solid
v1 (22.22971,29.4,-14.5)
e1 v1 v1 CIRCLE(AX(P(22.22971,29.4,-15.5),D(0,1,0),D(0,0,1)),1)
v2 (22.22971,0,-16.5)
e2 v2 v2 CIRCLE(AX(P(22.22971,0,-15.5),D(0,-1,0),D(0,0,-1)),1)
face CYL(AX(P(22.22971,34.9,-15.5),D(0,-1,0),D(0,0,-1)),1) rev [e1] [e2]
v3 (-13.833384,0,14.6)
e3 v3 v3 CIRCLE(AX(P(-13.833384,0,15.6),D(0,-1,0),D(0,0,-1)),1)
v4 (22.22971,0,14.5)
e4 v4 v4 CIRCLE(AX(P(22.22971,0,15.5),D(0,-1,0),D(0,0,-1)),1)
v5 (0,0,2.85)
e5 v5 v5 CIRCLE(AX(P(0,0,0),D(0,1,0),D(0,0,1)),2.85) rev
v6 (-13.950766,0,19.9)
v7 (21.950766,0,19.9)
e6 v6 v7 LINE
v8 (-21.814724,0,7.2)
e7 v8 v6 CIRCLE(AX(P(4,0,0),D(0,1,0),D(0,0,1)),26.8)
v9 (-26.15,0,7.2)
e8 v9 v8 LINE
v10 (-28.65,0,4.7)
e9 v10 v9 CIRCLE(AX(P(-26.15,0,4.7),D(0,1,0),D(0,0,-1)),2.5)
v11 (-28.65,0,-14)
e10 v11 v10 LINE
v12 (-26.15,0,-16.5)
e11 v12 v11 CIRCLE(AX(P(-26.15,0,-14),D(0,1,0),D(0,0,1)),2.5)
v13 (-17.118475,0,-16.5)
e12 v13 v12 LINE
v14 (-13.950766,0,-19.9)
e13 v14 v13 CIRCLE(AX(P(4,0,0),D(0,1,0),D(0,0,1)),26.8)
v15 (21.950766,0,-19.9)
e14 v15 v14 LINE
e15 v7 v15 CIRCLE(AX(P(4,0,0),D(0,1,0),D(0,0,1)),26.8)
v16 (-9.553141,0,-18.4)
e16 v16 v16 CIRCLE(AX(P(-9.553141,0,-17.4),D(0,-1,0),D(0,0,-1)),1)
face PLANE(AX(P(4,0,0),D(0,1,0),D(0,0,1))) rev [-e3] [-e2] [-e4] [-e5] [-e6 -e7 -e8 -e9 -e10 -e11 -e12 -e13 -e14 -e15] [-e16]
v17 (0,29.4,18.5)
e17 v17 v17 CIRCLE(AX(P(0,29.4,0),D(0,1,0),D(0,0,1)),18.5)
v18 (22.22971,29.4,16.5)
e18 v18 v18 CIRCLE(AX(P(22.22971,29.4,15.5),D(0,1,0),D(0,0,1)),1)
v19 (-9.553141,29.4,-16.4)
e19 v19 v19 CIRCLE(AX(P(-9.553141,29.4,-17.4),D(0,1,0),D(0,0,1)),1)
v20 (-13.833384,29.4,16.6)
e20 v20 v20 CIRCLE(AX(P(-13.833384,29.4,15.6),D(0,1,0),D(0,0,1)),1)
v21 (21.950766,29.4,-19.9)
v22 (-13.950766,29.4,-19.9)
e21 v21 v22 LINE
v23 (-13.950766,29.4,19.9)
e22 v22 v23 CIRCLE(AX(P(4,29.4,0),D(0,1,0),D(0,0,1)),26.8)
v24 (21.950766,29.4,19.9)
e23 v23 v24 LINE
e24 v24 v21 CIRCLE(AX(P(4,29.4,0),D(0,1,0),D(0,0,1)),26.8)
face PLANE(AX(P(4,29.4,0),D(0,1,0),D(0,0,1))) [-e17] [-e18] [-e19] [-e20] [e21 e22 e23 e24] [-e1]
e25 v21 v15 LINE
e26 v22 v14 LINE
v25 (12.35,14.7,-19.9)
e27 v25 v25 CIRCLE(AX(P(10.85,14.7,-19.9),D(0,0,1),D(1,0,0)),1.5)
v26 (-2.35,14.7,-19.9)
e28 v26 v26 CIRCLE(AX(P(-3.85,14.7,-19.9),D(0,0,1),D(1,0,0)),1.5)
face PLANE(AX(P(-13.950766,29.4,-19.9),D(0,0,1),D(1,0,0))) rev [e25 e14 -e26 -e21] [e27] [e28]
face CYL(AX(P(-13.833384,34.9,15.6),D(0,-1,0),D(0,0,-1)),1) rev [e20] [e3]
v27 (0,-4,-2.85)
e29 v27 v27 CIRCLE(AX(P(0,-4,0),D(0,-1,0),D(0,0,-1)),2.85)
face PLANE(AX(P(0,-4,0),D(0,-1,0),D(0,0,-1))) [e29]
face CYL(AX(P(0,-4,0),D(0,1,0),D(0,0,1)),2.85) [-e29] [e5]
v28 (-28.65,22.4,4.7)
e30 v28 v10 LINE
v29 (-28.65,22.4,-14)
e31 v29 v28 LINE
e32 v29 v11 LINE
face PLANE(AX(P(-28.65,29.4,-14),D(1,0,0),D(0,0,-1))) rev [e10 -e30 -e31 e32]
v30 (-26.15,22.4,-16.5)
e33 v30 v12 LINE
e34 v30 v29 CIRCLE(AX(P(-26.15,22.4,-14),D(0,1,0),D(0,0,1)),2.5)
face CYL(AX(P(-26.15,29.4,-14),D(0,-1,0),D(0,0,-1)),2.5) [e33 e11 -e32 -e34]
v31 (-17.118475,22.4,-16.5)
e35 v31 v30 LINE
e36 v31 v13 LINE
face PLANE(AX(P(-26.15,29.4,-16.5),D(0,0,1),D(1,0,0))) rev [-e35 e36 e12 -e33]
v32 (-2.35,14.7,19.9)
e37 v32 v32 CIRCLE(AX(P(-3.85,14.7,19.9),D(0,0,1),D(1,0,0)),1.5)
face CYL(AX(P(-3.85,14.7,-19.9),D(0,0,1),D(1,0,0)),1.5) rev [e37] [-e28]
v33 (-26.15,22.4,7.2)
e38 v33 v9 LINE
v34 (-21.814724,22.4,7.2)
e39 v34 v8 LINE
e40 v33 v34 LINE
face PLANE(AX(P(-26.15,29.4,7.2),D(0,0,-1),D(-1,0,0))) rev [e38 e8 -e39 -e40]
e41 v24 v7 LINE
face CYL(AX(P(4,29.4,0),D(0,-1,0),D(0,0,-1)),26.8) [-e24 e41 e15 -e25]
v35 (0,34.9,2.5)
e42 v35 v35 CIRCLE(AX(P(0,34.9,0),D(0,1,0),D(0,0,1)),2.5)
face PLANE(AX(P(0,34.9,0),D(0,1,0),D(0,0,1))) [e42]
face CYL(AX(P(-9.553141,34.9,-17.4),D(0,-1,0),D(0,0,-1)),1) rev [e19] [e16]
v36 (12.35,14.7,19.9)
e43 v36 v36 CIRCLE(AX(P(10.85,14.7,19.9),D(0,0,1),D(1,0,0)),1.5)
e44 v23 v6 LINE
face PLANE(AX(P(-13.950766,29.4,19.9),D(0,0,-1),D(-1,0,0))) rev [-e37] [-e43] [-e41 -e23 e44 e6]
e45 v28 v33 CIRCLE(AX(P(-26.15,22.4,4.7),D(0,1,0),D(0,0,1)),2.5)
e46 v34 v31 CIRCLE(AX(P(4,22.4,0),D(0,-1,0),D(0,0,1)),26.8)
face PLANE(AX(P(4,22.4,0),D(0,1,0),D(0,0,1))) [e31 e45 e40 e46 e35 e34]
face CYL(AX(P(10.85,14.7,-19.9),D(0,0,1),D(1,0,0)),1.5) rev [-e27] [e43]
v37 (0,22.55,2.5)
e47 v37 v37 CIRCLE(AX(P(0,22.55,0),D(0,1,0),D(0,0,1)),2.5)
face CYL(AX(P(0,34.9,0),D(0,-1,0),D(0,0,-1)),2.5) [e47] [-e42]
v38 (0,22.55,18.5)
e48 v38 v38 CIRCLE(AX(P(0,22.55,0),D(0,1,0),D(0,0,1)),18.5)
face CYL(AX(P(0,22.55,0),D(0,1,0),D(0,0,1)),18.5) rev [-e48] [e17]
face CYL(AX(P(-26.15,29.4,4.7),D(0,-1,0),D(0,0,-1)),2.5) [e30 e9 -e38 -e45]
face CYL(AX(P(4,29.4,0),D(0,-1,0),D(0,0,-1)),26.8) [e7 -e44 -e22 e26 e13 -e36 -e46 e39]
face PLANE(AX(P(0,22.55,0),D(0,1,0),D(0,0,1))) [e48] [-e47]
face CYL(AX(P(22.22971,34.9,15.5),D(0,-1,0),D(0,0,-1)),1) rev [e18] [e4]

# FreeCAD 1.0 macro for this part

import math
import FreeCAD as App
import Part
import Sketcher
from FreeCAD import Vector
Q = App.Units.Quantity

doc = App.newDocument("Part")
body = doc.addObject("PartDesign::Body", "Body")

sketch1 = body.newObject("Sketcher::SketchObject", "Sketch")
sketch1.AttachmentSupport = (doc.getObject("XZ_Plane"), [""])
sketch1.MapMode = "FlatFace"
sketch1.addGeometry([
    Part.LineSegment(Vector(22, -19.9, 0), Vector(-14, -19.9, 0)),
    Part.ArcOfCircle(Part.Circle(Vector(4, 0, 0), Vector(0, 0, 1), 26.8), math.radians(-142), math.radians(-132.05)),
    Part.LineSegment(Vector(-17.1, -16.5, 0), Vector(-26.1, -16.5, 0)),
    Part.ArcOfCircle(Part.Circle(Vector(-26.1, -14, 0), Vector(0, 0, 1), 2.5), math.radians(180), math.radians(270)),
    Part.LineSegment(Vector(-28.6, -14, 0), Vector(-28.6, 4.7, 0)),
    Part.ArcOfCircle(Part.Circle(Vector(-26.1, 4.7, 0), Vector(0, 0, 1), 2.5), math.radians(90), math.radians(180)),
    Part.LineSegment(Vector(-26.1, 7.2, 0), Vector(-21.8, 7.2, 0)),
    Part.ArcOfCircle(Part.Circle(Vector(4, 0, 0), Vector(0, 0, 1), 26.8), math.radians(132), math.radians(164)),
    Part.LineSegment(Vector(-14, 19.9, 0), Vector(22, 19.9, 0)),
    Part.ArcOfCircle(Part.Circle(Vector(4, 0, 0), Vector(0, 0, 1), 26.8), math.radians(-48), math.radians(48)),
], False)
sketch1.addConstraint([
    Sketcher.Constraint("Coincident", 0, 2, 1, 2),
    Sketcher.Constraint("Coincident", 1, 1, 2, 1),
    Sketcher.Constraint("Tangent", 2, 2, 3, 2),
    Sketcher.Constraint("Tangent", 3, 1, 4, 1),
    Sketcher.Constraint("Tangent", 4, 2, 5, 2),
    Sketcher.Constraint("Tangent", 5, 1, 6, 1),
    Sketcher.Constraint("Coincident", 6, 2, 7, 2),
    Sketcher.Constraint("Coincident", 7, 1, 8, 1),
    Sketcher.Constraint("Coincident", 8, 2, 9, 2),
    Sketcher.Constraint("Coincident", 9, 1, 0, 1),
    Sketcher.Constraint("Horizontal", 0),
    Sketcher.Constraint("Horizontal", 2),
    Sketcher.Constraint("Vertical", 4),
    Sketcher.Constraint("Horizontal", 6),
    Sketcher.Constraint("Horizontal", 8),
    Sketcher.Constraint("Coincident", 7, 3, 1, 3),
    Sketcher.Constraint("Coincident", 9, 3, 1, 3),
    Sketcher.Constraint("Equal", 3, 5),
    Sketcher.Constraint("Equal", 1, 7),
    Sketcher.Constraint("Equal", 7, 9),
    Sketcher.Constraint("Symmetric", 0, 2, 7, 1, -1),
    Sketcher.Constraint("Radius", 1, Q("26.8 mm")),
    Sketcher.Constraint("Radius", 3, Q("2.5 mm")),
    Sketcher.Constraint("DistanceY", 4, 1, 4, 2, Q("18.7 mm")),
    Sketcher.Constraint("DistanceX", -1, 1, 1, 3, Q("4 mm")),
    Sketcher.Constraint("DistanceY", 3, 3, -1, 1, Q("14 mm")),
    Sketcher.Constraint("DistanceY", 0, 2, -1, 1, Q("19.9 mm")),
    Sketcher.Constraint("DistanceX", 3, 3, -1, 1, Q("26.15 mm")),
])
pad1 = body.newObject("PartDesign::Pad", "Pad")
pad1.Profile = sketch1
pad1.Length = 29.4
pad1.Reversed = True

sketch2 = body.newObject("Sketcher::SketchObject", "Sketch001")
sketch2.AttachmentSupport = (doc.getObject("XZ_Plane"), [""])
sketch2.MapMode = "FlatFace"
sketch2.AttachmentOffset = App.Placement(Vector(0, 0, -29.4), App.Rotation())
sketch2.addGeometry(Part.Circle(Vector(0, 0, 0), Vector(0, 0, 1), 18), False)
sketch2.addConstraint([
    Sketcher.Constraint("Coincident", 0, 3, -1, 1),
    Sketcher.Constraint("Diameter", 0, Q("37 mm")),
])
pocket1 = body.newObject("PartDesign::Pocket", "Pocket")
pocket1.Profile = sketch2
pocket1.Length = 6.85
pocket1.Reversed = True

sketch3 = body.newObject("Sketcher::SketchObject", "Sketch002")
sketch3.AttachmentSupport = (doc.getObject("XZ_Plane"), [""])
sketch3.MapMode = "FlatFace"
sketch3.AttachmentOffset = App.Placement(Vector(0, 0, -22.55), App.Rotation())
sketch3.addGeometry(Part.Circle(Vector(0, 0, 0), Vector(0, 0, 1), 2.5), False)
sketch3.addConstraint([
    Sketcher.Constraint("Coincident", 0, 3, -1, 1),
    Sketcher.Constraint("Diameter", 0, Q("5 mm")),
])
pad2 = body.newObject("PartDesign::Pad", "Pad001")
pad2.Profile = sketch3
pad2.Length = 12.35
pad2.Reversed = True

sketch4 = body.newObject("Sketcher::SketchObject", "Sketch003")
sketch4.AttachmentSupport = (doc.getObject("XZ_Plane"), [""])
sketch4.MapMode = "FlatFace"
sketch4.addGeometry(Part.Circle(Vector(0, 0, 0), Vector(0, 0, 1), 2.9), False)
sketch4.addConstraint([
    Sketcher.Constraint("Coincident", 0, 3, -1, 1),
    Sketcher.Constraint("Diameter", 0, Q("5.7 mm")),
])
pad3 = body.newObject("PartDesign::Pad", "Pad002")
pad3.Profile = sketch4
pad3.Length = 4

sketch5 = body.newObject("Sketcher::SketchObject", "Sketch004")
sketch5.AttachmentSupport = (doc.getObject("XZ_Plane"), [""])
sketch5.MapMode = "FlatFace"
sketch5.AttachmentOffset = App.Placement(Vector(0, 0, -29.4), App.Rotation())
sketch5.addGeometry([
    Part.LineSegment(Vector(-16, -17, 0), Vector(-30, -17, 0)),
    Part.LineSegment(Vector(-30, -17, 0), Vector(-30, 8, 0)),
    Part.LineSegment(Vector(-30, 8, 0), Vector(-22, 8, 0)),
    Part.ArcOfCircle(Part.Circle(Vector(4, 0, 0), Vector(0, 0, 1), 27), math.radians(163), math.radians(220)),
], False)
sketch5.addConstraint([
    Sketcher.Constraint("Coincident", 0, 2, 1, 1),
    Sketcher.Constraint("Coincident", 1, 2, 2, 1),
    Sketcher.Constraint("Coincident", 2, 2, 3, 1),
    Sketcher.Constraint("Coincident", 3, 2, 0, 1),
    Sketcher.Constraint("Horizontal", 0),
    Sketcher.Constraint("Vertical", 1),
    Sketcher.Constraint("Horizontal", 2),
    Sketcher.Constraint("PointOnObject", 3, 3, -1),
    Sketcher.Constraint("Radius", 3, Q("26.8 mm")),
    Sketcher.Constraint("DistanceX", -1, 1, 3, 3, Q("4 mm")),
    Sketcher.Constraint("DistanceX", 0, 2, 0, 1, Q("13.609967 mm")),
    Sketcher.Constraint("DistanceX", 2, 1, 2, 2, Q("8.373484 mm")),
    Sketcher.Constraint("DistanceY", 1, 1, 1, 2, Q("25.265895 mm")),
])
pocket2 = body.newObject("PartDesign::Pocket", "Pocket001")
pocket2.Profile = sketch5
pocket2.Length = 7
pocket2.Reversed = True

sketch6 = body.newObject("Sketcher::SketchObject", "Sketch005")
sketch6.AttachmentSupport = (doc.getObject("XY_Plane"), [""])
sketch6.MapMode = "FlatFace"
sketch6.AttachmentOffset = App.Placement(Vector(0, 0, 19.9), App.Rotation())
sketch6.addGeometry([
    Part.Circle(Vector(-3.9, 14.7, 0), Vector(0, 0, 1), 1.5),
    Part.Circle(Vector(10.8, 14.7, 0), Vector(0, 0, 1), 1.5),
], False)
sketch6.addConstraint([
    Sketcher.Constraint("Equal", 0, 1),
    Sketcher.Constraint("Horizontal", 0, 3, 1, 3),
    Sketcher.Constraint("Diameter", 0, Q("3 mm")),
    Sketcher.Constraint("DistanceY", -1, 1, 0, 3, Q("14.7 mm")),
    Sketcher.Constraint("DistanceX", 0, 3, 1, 3, Q("14.7 mm")),
    Sketcher.Constraint("DistanceX", 0, 3, -1, 1, Q("3.85 mm")),
])
pocket3 = body.newObject("PartDesign::Pocket", "Pocket002")
pocket3.Profile = sketch6
pocket3.Type = "ThroughAll"

sketch7 = body.newObject("Sketcher::SketchObject", "Sketch006")
sketch7.AttachmentSupport = (doc.getObject("XZ_Plane"), [""])
sketch7.MapMode = "FlatFace"
sketch7.addGeometry([
    Part.Circle(Vector(-13.8, 15.6, 0), Vector(0, 0, 1), 1),
    Part.Circle(Vector(22.2, 15.5, 0), Vector(0, 0, 1), 1),
    Part.Circle(Vector(22.2, -15.5, 0), Vector(0, 0, 1), 1),
    Part.Circle(Vector(-9.6, -17.4, 0), Vector(0, 0, 1), 1),
], False)
sketch7.addConstraint([
    Sketcher.Constraint("Equal", 0, 1),
    Sketcher.Constraint("Equal", 1, 2),
    Sketcher.Constraint("Equal", 2, 3),
    Sketcher.Constraint("Symmetric", 1, 3, 2, 3, -1),
    Sketcher.Constraint("Diameter", 0, Q("2 mm")),
    Sketcher.Constraint("DistanceY", 2, 3, 1, 3, Q("31 mm")),
    Sketcher.Constraint("DistanceY", 3, 3, 0, 3, Q("33 mm")),
    Sketcher.Constraint("DistanceY", -1, 1, 0, 3, Q("15.6 mm")),
    Sketcher.Constraint("DistanceX", -1, 1, 1, 3, Q("22.22971 mm")),
    Sketcher.Constraint("DistanceX", 3, 3, -1, 1, Q("9.553141 mm")),
    Sketcher.Constraint("DistanceX", 0, 3, -1, 1, Q("13.833384 mm")),
])
pocket4 = body.newObject("PartDesign::Pocket", "Pocket003")
pocket4.Profile = sketch7
pocket4.Type = "ThroughAll"

doc.recompute()
